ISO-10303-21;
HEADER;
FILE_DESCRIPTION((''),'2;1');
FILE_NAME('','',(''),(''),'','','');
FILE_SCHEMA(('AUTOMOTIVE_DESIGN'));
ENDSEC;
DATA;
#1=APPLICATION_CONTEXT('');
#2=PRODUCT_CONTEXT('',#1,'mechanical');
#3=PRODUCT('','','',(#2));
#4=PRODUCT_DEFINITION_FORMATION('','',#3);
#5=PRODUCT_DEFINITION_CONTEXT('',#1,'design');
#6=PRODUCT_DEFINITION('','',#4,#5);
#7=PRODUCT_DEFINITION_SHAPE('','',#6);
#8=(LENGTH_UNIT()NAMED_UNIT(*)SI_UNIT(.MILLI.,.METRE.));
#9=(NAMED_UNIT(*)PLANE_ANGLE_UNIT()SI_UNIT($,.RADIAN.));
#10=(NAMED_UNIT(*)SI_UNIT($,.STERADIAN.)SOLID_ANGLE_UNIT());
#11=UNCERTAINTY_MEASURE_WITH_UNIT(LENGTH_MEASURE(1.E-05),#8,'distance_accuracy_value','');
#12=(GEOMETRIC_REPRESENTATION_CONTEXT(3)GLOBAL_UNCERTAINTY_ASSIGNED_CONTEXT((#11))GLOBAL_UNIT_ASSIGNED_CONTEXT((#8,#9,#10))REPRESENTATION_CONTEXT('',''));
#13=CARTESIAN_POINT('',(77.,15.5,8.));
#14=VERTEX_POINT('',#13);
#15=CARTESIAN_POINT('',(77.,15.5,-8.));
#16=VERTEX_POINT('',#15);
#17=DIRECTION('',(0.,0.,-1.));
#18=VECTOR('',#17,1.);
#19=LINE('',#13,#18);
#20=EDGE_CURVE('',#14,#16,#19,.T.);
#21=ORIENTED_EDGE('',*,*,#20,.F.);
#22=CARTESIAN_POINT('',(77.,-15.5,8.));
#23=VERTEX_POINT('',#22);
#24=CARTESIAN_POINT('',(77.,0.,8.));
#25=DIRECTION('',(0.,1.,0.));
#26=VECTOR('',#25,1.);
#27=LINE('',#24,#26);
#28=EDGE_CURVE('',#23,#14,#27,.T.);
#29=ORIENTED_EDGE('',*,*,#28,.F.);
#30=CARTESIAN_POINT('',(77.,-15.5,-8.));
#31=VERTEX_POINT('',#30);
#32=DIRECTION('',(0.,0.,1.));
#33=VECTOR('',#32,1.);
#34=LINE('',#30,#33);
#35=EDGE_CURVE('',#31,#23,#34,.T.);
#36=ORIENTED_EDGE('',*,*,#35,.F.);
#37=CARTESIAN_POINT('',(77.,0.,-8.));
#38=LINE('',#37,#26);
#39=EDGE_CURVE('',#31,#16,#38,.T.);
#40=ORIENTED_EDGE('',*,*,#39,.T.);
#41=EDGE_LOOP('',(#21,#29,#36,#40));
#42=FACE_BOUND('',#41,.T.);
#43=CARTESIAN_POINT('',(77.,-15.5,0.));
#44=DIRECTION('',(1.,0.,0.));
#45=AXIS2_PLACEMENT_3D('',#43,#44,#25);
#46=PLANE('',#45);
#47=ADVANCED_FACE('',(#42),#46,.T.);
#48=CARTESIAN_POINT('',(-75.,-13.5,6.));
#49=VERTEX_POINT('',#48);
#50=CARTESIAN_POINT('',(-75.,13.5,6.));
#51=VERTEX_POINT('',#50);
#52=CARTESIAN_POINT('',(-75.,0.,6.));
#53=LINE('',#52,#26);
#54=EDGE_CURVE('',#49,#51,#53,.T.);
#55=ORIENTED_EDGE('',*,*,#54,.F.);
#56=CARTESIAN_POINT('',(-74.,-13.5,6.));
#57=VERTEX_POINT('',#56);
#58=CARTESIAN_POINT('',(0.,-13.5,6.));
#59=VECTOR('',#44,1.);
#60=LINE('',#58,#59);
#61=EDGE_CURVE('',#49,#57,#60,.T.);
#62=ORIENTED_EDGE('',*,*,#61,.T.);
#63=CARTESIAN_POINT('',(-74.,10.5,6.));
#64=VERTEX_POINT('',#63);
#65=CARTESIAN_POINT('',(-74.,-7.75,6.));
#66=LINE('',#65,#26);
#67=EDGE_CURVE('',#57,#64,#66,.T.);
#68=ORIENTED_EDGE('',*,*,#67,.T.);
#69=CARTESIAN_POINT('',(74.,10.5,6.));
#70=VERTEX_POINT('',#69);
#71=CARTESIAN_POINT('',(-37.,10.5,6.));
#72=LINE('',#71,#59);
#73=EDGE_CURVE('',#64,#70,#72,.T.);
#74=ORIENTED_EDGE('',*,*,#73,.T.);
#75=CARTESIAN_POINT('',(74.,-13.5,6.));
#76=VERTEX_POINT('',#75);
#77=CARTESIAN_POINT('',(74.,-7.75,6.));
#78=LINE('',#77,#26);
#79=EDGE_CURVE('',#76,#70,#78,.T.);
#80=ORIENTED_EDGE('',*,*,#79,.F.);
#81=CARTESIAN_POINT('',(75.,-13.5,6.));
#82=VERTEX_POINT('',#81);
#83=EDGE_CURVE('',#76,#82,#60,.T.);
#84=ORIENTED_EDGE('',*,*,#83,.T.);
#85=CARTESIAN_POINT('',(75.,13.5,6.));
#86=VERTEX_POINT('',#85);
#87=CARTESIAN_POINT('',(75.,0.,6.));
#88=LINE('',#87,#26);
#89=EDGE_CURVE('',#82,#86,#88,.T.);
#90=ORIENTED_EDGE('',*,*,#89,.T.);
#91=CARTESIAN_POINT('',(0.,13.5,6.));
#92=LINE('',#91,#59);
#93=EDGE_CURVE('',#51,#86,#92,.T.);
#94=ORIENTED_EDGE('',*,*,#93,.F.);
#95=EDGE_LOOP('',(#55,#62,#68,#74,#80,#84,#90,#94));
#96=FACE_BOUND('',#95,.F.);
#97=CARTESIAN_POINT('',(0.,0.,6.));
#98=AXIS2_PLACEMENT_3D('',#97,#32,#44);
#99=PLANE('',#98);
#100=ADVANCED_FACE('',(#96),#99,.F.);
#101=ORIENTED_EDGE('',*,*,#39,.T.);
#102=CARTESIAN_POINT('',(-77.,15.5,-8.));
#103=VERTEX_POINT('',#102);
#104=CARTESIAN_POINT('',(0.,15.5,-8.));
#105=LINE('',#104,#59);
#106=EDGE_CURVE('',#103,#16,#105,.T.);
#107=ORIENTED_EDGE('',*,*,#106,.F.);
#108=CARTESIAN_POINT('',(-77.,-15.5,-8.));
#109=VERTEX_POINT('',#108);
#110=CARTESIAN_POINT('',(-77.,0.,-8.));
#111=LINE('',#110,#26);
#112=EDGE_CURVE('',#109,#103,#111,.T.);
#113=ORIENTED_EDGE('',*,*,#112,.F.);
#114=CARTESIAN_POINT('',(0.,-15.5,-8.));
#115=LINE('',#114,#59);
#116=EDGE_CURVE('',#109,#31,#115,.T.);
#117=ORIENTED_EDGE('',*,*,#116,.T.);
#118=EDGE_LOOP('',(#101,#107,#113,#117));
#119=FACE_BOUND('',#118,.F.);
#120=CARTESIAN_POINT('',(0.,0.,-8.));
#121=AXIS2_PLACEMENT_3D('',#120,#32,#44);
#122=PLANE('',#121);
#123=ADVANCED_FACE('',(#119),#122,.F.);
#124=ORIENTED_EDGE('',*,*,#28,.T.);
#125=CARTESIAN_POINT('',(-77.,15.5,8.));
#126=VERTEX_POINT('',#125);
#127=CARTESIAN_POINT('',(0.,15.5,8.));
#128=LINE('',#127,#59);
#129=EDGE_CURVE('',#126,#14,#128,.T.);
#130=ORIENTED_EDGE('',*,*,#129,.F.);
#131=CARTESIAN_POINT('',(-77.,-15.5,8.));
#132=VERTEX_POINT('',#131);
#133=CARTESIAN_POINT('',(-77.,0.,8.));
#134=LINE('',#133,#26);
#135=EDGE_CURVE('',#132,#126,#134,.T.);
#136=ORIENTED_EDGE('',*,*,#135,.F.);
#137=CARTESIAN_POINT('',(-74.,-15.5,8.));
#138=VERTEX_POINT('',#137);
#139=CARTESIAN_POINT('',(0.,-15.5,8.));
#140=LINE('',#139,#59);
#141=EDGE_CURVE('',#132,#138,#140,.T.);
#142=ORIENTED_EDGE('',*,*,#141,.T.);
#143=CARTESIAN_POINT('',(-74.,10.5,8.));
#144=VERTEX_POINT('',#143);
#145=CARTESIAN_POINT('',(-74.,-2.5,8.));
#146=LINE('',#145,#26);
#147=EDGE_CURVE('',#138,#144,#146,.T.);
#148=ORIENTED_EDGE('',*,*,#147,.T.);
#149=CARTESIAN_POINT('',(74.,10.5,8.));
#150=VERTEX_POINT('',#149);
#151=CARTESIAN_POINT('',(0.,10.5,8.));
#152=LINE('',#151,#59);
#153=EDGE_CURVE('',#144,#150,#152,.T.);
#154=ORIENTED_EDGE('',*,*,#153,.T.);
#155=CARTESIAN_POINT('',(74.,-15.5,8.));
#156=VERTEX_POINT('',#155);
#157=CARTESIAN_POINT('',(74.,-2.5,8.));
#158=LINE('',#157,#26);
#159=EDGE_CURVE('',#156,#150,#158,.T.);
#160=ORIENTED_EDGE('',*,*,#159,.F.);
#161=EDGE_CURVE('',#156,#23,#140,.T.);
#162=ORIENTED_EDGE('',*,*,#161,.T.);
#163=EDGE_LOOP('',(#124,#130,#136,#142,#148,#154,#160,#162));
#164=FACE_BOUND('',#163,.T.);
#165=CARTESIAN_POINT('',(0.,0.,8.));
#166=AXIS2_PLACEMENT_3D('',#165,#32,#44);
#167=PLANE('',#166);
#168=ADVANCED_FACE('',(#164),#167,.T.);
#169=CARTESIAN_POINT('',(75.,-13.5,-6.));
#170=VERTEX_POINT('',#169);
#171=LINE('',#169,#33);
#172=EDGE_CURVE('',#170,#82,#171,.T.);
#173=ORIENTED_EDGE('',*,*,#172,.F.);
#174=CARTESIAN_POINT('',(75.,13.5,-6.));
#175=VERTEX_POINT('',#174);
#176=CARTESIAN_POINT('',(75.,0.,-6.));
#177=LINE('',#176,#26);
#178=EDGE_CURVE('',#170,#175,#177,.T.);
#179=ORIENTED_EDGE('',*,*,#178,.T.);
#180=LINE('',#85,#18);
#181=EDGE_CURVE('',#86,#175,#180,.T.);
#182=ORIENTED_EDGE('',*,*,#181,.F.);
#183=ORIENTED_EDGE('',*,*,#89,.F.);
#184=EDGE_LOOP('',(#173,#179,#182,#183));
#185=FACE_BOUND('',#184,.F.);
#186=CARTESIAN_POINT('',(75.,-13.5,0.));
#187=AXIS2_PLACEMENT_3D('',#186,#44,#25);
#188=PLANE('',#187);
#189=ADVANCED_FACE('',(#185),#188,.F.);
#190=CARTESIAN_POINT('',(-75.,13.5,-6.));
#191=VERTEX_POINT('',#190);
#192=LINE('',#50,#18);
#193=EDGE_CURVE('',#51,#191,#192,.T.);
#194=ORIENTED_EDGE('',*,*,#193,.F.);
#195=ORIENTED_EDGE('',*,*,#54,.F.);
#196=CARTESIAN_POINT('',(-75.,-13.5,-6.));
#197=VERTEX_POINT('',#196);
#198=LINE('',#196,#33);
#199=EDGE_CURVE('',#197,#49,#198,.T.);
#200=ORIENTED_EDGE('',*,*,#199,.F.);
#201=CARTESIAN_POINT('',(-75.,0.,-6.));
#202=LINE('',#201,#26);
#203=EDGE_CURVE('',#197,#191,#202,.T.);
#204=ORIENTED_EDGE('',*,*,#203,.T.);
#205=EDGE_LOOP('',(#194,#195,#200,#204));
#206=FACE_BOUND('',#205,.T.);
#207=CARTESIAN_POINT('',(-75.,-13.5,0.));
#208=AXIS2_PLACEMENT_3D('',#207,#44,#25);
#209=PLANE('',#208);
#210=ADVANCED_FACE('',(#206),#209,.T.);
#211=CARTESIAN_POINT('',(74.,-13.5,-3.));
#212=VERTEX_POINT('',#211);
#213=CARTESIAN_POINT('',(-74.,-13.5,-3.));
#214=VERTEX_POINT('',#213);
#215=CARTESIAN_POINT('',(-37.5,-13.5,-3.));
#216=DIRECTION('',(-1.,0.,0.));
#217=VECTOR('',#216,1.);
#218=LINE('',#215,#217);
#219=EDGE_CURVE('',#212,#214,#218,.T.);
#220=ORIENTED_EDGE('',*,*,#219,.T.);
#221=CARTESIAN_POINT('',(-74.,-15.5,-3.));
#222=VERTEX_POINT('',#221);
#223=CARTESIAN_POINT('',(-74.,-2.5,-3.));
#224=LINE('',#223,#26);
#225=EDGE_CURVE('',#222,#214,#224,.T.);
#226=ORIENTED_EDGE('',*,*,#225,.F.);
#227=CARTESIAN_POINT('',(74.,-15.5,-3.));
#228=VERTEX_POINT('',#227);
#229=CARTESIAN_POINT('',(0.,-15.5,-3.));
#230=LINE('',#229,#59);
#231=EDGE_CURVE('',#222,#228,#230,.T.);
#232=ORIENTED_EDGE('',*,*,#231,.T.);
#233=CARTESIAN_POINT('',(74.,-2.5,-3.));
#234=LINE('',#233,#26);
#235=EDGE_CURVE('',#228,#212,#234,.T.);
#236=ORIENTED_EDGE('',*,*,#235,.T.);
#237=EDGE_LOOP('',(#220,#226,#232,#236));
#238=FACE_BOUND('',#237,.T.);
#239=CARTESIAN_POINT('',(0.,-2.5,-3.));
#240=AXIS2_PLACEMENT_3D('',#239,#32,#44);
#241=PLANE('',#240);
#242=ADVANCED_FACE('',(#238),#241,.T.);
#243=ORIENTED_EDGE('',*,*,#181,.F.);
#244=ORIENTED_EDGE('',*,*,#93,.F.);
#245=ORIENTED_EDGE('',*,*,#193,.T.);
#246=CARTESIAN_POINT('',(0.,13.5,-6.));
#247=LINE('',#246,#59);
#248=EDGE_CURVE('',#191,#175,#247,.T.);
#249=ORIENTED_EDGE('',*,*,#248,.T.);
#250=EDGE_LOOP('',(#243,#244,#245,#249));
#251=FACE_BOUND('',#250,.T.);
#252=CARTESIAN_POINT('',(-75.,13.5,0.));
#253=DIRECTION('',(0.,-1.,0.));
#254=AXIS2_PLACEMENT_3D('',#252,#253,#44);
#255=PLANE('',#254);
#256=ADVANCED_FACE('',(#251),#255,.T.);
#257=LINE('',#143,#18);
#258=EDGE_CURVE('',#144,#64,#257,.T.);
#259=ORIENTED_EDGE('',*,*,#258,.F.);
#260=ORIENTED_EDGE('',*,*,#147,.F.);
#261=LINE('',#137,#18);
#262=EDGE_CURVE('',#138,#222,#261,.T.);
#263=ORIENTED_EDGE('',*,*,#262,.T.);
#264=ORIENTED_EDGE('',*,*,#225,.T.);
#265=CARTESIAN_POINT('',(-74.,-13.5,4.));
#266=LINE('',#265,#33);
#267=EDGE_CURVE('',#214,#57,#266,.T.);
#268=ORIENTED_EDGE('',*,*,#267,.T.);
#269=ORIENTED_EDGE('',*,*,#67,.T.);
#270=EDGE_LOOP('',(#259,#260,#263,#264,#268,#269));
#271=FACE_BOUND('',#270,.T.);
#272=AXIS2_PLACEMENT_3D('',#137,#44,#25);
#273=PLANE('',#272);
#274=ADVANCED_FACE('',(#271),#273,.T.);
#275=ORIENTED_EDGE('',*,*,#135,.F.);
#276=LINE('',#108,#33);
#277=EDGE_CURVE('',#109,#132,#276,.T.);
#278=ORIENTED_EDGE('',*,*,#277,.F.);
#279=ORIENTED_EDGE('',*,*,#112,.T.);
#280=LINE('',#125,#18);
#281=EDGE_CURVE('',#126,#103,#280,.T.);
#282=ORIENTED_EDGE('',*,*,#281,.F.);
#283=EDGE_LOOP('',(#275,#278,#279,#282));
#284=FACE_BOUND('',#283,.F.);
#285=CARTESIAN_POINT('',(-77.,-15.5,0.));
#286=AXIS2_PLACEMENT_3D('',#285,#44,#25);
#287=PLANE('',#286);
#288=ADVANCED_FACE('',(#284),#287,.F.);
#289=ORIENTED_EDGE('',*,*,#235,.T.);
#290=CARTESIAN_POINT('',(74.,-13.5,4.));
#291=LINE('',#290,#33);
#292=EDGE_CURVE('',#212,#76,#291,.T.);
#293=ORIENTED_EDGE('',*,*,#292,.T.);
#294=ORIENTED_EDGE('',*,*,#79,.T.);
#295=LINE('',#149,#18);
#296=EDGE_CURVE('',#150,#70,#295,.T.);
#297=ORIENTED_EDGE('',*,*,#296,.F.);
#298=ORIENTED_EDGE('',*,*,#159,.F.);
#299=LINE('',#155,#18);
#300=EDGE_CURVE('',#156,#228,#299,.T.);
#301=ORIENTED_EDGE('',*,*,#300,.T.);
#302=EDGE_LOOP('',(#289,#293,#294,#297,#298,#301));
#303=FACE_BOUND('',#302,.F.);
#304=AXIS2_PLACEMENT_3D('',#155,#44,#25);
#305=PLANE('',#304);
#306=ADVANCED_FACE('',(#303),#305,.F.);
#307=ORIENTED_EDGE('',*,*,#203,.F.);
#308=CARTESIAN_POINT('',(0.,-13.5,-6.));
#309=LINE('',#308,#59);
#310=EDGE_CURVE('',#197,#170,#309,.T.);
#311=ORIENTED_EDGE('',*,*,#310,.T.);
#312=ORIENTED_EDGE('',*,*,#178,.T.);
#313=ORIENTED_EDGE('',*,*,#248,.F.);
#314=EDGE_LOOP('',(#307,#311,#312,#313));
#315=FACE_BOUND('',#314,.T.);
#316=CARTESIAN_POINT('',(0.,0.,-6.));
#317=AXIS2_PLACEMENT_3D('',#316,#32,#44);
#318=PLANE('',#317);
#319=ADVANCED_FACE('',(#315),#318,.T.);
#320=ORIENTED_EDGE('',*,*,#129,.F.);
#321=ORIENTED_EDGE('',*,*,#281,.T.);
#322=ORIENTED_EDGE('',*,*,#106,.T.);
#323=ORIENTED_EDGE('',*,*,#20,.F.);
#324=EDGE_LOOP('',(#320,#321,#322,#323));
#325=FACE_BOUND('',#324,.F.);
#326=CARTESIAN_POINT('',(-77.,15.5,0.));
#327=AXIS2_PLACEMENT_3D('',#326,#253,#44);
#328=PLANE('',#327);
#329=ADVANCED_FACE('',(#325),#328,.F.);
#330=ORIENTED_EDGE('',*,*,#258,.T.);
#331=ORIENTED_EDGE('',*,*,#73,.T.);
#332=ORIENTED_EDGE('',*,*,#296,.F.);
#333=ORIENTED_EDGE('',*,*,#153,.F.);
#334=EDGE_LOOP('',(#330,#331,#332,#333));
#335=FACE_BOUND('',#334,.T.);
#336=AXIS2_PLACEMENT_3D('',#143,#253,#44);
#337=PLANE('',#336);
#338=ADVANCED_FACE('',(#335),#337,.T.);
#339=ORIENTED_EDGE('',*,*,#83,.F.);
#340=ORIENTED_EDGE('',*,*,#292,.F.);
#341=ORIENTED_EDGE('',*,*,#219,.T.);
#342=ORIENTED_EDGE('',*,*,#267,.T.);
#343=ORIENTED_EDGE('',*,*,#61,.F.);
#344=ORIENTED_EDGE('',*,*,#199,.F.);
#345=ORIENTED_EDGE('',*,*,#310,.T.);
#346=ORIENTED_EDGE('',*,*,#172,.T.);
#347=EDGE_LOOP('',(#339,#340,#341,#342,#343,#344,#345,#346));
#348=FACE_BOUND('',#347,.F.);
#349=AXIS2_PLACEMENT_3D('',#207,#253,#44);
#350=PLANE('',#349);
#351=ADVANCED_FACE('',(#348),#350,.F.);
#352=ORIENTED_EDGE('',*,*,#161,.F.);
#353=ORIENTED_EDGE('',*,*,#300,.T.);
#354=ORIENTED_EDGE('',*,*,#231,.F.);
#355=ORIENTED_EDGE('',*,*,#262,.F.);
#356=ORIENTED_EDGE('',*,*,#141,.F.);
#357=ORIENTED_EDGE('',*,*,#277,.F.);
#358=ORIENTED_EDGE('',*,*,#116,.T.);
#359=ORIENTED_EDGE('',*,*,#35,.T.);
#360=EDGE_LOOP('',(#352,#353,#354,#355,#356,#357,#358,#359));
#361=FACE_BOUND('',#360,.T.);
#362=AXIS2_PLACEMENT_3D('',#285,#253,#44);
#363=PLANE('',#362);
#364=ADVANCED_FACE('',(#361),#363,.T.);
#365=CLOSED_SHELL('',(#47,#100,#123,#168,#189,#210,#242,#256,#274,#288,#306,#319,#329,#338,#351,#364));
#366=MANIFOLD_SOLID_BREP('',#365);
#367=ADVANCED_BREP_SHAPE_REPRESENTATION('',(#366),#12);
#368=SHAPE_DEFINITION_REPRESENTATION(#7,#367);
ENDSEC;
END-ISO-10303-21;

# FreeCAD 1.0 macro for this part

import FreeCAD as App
import Part
import Sketcher
from FreeCAD import Vector
Q = App.Units.Quantity


def add_polygon(sketch, points):
    """Adds a closed chain of lines whose ends are joined by coincident constraints."""
    first, n = sketch.GeometryCount, len(points)
    for a, b in zip(points, points[1:] + points[:1]):
        sketch.addGeometry(Part.LineSegment(App.Vector(*a, 0), App.Vector(*b, 0)), False)
    for i in range(n):
        sketch.addConstraint(Sketcher.Constraint("Coincident", first + i, 2, first + (i + 1) % n, 1))

doc = App.newDocument("Part")
body = doc.addObject("PartDesign::Body", "Body")

sketch1 = body.newObject("Sketcher::SketchObject", "Sketch")
sketch1.AttachmentSupport = (doc.getObject("XY_Plane"), [""])
sketch1.MapMode = "FlatFace"
add_polygon(sketch1, [(-77, 16), (-77, -16), (77, -16), (77, 16)])
sketch1.addConstraint([
    Sketcher.Constraint("Vertical", 0),
    Sketcher.Constraint("Horizontal", 1),
    Sketcher.Constraint("Vertical", 2),
    Sketcher.Constraint("Horizontal", 3),
    Sketcher.Constraint("Symmetric", 0, 2, 2, 2, -1, 1),
    Sketcher.Constraint("DistanceX", 1, 1, 1, 2, Q("154 mm")),
    Sketcher.Constraint("DistanceY", 0, 2, 0, 1, Q("31 mm")),
])
pad1 = body.newObject("PartDesign::Pad", "Pad")
pad1.Profile = sketch1
pad1.Length = 16
pad1.Midplane = True

sketch2 = body.newObject("Sketcher::SketchObject", "Sketch001")
sketch2.AttachmentSupport = (doc.getObject("XY_Plane"), [""])
sketch2.MapMode = "FlatFace"
add_polygon(sketch2, [(-75, 14), (-75, -14), (75, -14), (75, 14)])
sketch2.addConstraint([
    Sketcher.Constraint("Vertical", 0),
    Sketcher.Constraint("Horizontal", 1),
    Sketcher.Constraint("Vertical", 2),
    Sketcher.Constraint("Horizontal", 3),
    Sketcher.Constraint("Symmetric", 0, 2, 2, 2, -1, 1),
    Sketcher.Constraint("DistanceX", 1, 1, 1, 2, Q("150 mm")),
    Sketcher.Constraint("DistanceY", 0, 2, 0, 1, Q("27 mm")),
])
pocket1 = body.newObject("PartDesign::Pocket", "Pocket")
pocket1.Profile = sketch2
pocket1.Length = 12
pocket1.Midplane = True

sketch3 = body.newObject("Sketcher::SketchObject", "Sketch002")
sketch3.AttachmentSupport = (doc.getObject("XY_Plane"), [""])
sketch3.MapMode = "FlatFace"
sketch3.AttachmentOffset = App.Placement(Vector(0, 0, 8), App.Rotation())
add_polygon(sketch3, [(-74, 10), (-74, -16), (74, -16), (74, 10)])
sketch3.addConstraint([
    Sketcher.Constraint("Vertical", 0),
    Sketcher.Constraint("Horizontal", 1),
    Sketcher.Constraint("Vertical", 2),
    Sketcher.Constraint("Horizontal", 3),
    Sketcher.Constraint("DistanceX", 1, 1, 1, 2, Q("148 mm")),
    Sketcher.Constraint("DistanceY", 0, 2, 0, 1, Q("26 mm")),
    Sketcher.Constraint("DistanceX", 0, 2, -1, 1, Q("74 mm")),
    Sketcher.Constraint("DistanceY", 0, 2, -1, 1, Q("15.5 mm")),
])
pocket2 = body.newObject("PartDesign::Pocket", "Pocket001")
pocket2.Profile = sketch3
pocket2.Length = 11

doc.recompute()
